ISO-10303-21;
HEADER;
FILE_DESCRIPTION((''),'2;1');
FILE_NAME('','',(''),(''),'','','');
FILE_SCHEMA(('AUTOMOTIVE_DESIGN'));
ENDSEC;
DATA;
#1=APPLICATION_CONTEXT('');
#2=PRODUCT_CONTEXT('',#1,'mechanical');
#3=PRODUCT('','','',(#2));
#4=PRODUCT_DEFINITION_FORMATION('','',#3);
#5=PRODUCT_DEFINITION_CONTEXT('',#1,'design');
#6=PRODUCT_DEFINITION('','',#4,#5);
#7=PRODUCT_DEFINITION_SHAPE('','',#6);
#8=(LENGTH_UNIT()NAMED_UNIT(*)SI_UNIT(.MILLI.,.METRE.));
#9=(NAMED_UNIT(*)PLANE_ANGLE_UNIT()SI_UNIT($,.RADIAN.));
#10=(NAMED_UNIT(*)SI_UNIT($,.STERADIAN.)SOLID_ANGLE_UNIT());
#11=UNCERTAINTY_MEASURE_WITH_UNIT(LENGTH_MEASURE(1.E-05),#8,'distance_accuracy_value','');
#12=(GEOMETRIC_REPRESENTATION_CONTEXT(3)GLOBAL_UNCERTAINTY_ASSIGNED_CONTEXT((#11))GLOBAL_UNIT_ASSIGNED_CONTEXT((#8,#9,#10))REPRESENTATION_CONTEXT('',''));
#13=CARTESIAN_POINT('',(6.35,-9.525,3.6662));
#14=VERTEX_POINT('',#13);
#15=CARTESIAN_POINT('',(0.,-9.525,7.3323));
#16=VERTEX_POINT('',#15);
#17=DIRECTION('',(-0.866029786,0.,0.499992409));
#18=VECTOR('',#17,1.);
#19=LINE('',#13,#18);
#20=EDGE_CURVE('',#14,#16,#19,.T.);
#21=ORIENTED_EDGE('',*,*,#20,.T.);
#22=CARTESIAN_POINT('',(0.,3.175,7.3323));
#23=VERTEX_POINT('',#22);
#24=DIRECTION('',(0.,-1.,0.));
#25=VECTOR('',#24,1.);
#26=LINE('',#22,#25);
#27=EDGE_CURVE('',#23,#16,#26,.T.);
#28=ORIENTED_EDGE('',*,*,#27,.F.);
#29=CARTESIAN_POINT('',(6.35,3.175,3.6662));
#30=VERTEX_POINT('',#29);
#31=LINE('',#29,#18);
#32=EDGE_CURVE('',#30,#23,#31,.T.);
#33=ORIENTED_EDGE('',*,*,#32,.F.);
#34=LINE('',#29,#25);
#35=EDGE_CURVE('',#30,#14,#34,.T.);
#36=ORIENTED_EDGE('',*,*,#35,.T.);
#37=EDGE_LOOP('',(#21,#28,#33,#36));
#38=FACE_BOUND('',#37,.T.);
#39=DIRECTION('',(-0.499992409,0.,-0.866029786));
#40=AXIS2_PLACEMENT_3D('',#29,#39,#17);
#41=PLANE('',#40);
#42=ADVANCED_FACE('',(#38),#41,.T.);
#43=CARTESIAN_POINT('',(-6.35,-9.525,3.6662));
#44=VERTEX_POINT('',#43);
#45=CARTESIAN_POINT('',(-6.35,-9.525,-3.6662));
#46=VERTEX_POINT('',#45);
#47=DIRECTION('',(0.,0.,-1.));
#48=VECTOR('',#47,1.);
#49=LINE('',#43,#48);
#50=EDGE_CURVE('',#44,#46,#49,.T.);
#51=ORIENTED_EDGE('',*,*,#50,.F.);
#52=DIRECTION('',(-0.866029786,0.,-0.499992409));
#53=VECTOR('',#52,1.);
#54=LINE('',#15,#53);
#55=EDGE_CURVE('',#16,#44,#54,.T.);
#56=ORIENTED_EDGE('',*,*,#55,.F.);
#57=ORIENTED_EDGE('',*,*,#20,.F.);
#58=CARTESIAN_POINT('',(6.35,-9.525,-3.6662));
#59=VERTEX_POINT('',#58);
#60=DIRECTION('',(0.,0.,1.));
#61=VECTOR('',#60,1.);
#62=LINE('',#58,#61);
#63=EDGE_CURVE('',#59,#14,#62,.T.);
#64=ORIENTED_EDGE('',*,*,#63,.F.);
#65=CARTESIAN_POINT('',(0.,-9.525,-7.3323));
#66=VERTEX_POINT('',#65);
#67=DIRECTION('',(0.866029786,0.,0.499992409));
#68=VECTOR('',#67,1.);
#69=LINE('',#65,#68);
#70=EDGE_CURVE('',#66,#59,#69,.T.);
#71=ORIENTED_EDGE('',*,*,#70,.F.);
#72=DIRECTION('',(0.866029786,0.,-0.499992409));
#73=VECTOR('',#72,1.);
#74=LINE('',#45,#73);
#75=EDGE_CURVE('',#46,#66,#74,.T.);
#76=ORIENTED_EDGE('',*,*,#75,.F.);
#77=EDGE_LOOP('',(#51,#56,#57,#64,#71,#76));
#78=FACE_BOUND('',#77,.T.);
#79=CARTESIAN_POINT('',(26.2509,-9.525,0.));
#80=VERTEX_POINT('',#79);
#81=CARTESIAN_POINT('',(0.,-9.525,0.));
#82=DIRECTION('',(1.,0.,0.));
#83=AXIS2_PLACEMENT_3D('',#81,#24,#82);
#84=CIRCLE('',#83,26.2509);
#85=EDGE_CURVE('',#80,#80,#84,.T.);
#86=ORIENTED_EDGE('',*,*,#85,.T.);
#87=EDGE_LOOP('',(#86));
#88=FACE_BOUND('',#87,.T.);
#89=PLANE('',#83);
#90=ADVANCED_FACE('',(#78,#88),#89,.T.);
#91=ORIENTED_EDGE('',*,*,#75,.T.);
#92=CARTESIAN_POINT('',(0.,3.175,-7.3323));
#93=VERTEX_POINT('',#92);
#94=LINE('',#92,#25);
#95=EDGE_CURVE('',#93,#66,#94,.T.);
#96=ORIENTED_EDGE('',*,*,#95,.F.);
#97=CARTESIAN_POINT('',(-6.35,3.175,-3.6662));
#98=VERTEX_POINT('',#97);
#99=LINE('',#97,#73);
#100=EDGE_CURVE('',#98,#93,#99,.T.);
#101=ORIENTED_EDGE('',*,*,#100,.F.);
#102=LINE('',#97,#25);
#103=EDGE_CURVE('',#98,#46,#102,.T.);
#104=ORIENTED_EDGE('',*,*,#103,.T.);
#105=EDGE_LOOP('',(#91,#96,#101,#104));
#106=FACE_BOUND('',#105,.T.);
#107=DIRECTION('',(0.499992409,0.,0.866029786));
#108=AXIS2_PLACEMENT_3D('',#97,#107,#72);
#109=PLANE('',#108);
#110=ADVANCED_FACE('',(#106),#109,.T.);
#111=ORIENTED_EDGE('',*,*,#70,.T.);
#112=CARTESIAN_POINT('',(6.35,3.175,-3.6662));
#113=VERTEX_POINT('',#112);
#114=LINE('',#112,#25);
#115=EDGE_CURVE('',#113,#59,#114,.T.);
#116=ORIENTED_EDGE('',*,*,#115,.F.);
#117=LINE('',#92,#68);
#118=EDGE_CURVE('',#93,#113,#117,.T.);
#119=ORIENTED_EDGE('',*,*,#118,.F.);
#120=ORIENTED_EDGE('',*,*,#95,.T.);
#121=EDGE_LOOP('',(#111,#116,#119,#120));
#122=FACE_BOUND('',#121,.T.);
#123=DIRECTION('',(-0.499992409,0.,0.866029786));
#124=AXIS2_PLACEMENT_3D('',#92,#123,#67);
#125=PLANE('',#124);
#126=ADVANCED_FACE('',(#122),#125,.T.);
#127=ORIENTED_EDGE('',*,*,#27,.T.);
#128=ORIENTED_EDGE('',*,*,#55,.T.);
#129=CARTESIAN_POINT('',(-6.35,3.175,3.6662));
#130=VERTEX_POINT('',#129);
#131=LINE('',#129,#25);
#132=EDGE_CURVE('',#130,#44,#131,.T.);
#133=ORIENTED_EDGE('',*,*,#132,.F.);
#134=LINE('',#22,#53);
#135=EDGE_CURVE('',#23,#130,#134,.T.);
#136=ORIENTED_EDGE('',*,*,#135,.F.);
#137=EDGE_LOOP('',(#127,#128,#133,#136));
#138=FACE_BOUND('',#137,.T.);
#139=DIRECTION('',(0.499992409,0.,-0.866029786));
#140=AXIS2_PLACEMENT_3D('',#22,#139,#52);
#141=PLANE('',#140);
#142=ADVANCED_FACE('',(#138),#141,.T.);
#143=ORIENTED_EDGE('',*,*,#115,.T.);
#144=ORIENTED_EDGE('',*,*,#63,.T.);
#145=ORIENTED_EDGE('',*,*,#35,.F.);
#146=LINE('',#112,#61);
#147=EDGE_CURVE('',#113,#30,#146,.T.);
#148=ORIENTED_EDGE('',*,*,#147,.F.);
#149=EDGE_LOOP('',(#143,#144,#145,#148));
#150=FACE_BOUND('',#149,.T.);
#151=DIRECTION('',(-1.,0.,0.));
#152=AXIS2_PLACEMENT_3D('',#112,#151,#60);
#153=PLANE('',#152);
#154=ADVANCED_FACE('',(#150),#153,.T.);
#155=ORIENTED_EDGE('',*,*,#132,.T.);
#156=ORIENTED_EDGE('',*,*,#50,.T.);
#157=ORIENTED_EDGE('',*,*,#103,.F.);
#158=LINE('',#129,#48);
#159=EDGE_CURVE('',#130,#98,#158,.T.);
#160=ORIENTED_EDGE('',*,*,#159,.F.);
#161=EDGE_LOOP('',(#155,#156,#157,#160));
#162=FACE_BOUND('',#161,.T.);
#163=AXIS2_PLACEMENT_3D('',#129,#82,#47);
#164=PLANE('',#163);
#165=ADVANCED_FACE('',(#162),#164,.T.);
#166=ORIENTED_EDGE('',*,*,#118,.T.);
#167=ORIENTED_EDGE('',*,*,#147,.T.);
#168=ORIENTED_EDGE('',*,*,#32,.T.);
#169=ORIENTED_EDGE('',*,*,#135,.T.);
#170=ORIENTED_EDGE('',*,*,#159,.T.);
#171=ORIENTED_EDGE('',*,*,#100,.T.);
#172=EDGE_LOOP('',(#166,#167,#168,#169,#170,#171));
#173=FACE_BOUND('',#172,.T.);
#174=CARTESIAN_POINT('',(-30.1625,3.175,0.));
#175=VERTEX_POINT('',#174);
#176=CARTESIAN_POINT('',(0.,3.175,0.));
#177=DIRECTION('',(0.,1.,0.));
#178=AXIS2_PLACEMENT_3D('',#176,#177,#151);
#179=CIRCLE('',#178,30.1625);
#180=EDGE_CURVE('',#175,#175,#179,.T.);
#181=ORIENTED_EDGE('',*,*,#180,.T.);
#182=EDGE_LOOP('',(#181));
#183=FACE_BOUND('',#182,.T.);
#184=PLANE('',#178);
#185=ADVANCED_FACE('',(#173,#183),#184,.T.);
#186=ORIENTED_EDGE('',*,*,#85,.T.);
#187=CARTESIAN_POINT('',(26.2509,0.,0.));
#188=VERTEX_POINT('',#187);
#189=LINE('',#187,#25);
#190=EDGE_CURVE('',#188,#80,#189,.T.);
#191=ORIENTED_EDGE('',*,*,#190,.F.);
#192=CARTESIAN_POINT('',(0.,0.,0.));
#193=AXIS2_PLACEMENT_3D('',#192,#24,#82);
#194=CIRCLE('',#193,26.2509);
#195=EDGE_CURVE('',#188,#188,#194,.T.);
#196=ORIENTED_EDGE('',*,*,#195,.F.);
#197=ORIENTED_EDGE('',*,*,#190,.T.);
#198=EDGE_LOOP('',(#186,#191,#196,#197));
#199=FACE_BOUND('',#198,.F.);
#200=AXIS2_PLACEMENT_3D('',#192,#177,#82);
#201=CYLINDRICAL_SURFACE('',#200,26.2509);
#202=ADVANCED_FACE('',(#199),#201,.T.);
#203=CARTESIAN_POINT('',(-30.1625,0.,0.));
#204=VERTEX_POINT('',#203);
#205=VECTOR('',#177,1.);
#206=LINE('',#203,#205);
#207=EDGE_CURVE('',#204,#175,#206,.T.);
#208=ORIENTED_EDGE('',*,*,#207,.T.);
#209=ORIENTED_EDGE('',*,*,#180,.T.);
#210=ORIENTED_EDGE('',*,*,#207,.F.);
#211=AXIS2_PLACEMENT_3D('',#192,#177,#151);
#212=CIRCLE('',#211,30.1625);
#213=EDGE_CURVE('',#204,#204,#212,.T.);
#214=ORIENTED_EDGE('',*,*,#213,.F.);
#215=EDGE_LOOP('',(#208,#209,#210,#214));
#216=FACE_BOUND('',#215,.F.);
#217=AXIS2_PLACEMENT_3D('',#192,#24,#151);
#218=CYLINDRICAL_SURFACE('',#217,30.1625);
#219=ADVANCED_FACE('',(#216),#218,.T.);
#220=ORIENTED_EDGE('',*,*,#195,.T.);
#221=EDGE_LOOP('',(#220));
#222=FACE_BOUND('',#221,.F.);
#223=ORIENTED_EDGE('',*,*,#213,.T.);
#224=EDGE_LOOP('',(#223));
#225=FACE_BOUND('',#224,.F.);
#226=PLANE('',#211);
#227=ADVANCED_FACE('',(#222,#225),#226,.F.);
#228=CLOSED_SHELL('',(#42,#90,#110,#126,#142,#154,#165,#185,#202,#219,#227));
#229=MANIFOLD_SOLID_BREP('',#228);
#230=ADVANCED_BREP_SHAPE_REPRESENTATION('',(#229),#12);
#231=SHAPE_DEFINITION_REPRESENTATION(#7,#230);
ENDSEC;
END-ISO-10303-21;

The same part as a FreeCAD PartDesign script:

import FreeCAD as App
import Part
import Sketcher
from FreeCAD import Vector
Q = App.Units.Quantity


def add_polygon(sketch, points):
    """Adds a closed chain of lines whose ends are joined by coincident constraints."""
    first, n = sketch.GeometryCount, len(points)
    for a, b in zip(points, points[1:] + points[:1]):
        sketch.addGeometry(Part.LineSegment(App.Vector(*a, 0), App.Vector(*b, 0)), False)
    for i in range(n):
        sketch.addConstraint(Sketcher.Constraint("Coincident", first + i, 2, first + (i + 1) % n, 1))

doc = App.newDocument("Part")
body = doc.addObject("PartDesign::Body", "Body")

# Sketch on XZ plane
sketch1 = doc.addObject("Sketcher::SketchObject", "Sketch")
body.addObject(sketch1)
sketch1.AttachmentSupport = (doc.XZ_Plane, [""])
sketch1.MapMode = "FlatFace"
sketch1.addGeometry(Part.Circle(Vector(0, 0, 0), Vector(0, 0, 1), 30.1625), False)
sketch1.addConstraint([
    Sketcher.Constraint("Coincident", 0, 3, -1, 1),
    Sketcher.Constraint("Diameter", 0, Q("2.375 in")),
])
pad1 = doc.addObject("PartDesign::Pad", "Pad")
body.addObject(pad1)
pad1.Profile = sketch1
pad1.Length = Q("0.125 in")
pad1.Reversed = True

# Sketch on XZ plane
sketch2 = doc.addObject("Sketcher::SketchObject", "Sketch001")
body.addObject(sketch2)
sketch2.AttachmentSupport = (doc.XZ_Plane, [""])
sketch2.MapMode = "FlatFace"
sketch2.addGeometry(Part.Circle(Vector(0, 0, 0), Vector(0, 0, 1), 26.2509), False)
sketch2.addConstraint([
    Sketcher.Constraint("Coincident", 0, 3, -1, 1),
    Sketcher.Constraint("Diameter", 0, Q("2.067 in")),
])
pad2 = doc.addObject("PartDesign::Pad", "Pad001")
body.addObject(pad2)
pad2.Profile = sketch2
pad2.Length = Q("0.375 in")

# Sketch on XZ plane
sketch3 = doc.addObject("Sketcher::SketchObject", "Sketch002")
body.addObject(sketch3)
sketch3.AttachmentSupport = (doc.XZ_Plane, [""])
sketch3.MapMode = "FlatFace"
sketch3.AttachmentOffset = App.Placement(Vector(0, 0, -0.125 * 25.4), App.Rotation())
add_polygon(sketch3, [(6.35, -3.6662), (0, -7.3323), (-6.35, -3.6662), (-6.35, 3.6662), (0, 7.3323), (6.35, 3.6662)])  # lines 0-5
sketch3.addConstraint([
    Sketcher.Constraint("Vertical", 2),
    Sketcher.Constraint("Vertical", 5),
    Sketcher.Constraint("Symmetric", 0, 2, 3, 2, -1, 1),
    Sketcher.Constraint("Symmetric", 1, 2, 4, 2, -1, 1),
    Sketcher.Constraint("PointOnObject", 0, 2, -2),
    Sketcher.Constraint("Parallel", 0, 3),
    Sketcher.Constraint("Horizontal", 2, 2, 4, 2),
    Sketcher.Constraint("DistanceX", 2, 2, 4, 2, Q("0.5 in")),
    Sketcher.Constraint("Angle", 0, Q("-150.0005 deg")),
    Sketcher.Constraint("DistanceY", 0, 2, 2, 2, Q("0.433 in")),
])
pocket1 = doc.addObject("PartDesign::Pocket", "Pocket")
body.addObject(pocket1)
pocket1.Profile = sketch3
pocket1.Length = Q("0.5 in")
pocket1.Reversed = True

doc.recompute()
